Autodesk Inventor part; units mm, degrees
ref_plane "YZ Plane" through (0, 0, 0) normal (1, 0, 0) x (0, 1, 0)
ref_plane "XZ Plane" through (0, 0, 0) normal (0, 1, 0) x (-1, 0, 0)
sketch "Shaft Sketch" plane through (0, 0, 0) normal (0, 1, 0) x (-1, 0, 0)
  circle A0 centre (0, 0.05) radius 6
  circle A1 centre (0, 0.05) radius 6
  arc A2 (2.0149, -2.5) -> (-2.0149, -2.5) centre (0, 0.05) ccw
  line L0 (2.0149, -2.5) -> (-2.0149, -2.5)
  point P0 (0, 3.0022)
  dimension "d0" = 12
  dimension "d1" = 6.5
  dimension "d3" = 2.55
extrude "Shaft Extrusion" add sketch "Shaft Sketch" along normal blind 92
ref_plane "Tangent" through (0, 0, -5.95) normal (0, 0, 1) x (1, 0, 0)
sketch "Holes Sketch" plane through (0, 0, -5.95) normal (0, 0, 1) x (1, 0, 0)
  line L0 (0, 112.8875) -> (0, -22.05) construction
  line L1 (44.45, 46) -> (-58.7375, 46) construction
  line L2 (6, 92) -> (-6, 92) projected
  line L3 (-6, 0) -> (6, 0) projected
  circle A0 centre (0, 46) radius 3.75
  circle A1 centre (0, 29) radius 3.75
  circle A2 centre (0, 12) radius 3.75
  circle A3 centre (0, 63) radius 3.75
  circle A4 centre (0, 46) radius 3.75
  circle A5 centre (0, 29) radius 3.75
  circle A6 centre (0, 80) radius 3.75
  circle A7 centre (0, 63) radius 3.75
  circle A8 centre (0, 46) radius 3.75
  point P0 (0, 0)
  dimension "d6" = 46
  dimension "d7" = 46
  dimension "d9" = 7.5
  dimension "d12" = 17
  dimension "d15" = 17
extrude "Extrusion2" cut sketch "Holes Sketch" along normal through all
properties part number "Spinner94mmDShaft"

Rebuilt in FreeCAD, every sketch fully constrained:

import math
import FreeCAD as App
import Part
import Sketcher

V = App.Vector
Q = App.Units.Quantity

doc = App.newDocument("Part")
body = doc.addObject("PartDesign::Body", "Body")

# Sketch on XZ plane
sketch1 = doc.addObject("Sketcher::SketchObject", "Sketch")
body.addObject(sketch1)
sketch1.AttachmentSupport = (doc.XZ_Plane, [""])
sketch1.MapMode = "FlatFace"
sketch1.addGeometry(Part.Circle(V(0, 0.05, 0), V(0, 0, 1), 6), False)
sketch1.addGeometry(Part.ArcOfCircle(Part.Circle(V(0, 0.05, 0), V(0, 0, 1), 3.249973), math.radians(-51.685731), math.radians(231.685731)), False)
sketch1.addGeometry(Part.LineSegment(V(-2.0149, -2.5, 0), V(2.0149, -2.5, 0)), False)
sketch1.addConstraint(Sketcher.Constraint("Coincident", 1, 1, 2, 2))
sketch1.addConstraint(Sketcher.Constraint("Coincident", 2, 1, 1, 2))
sketch1.addConstraint(Sketcher.Constraint("Horizontal", 2))
sketch1.addConstraint(Sketcher.Constraint("Coincident", 1, 3, 0, 3))
sketch1.addConstraint(Sketcher.Constraint("PointOnObject", 0, 3, -2))
sketch1.addConstraint(Sketcher.Constraint("Diameter", 0, Q("12 mm")))
sketch1.addConstraint(Sketcher.Constraint("Radius", 1, Q("3.25 mm")))
sketch1.addConstraint(Sketcher.Constraint("DistanceY", 1, 1, 0, 3, Q("2.55 mm")))
sketch1.addConstraint(Sketcher.Constraint("DistanceY", 1, 1, -1, 1, Q("2.5 mm")))
pad1 = doc.addObject("PartDesign::Pad", "Pad")
body.addObject(pad1)
pad1.Profile = sketch1
pad1.Length = 92
pad1.Reversed = True

# Sketch on XY plane
sketch2 = doc.addObject("Sketcher::SketchObject", "Sketch001")
body.addObject(sketch2)
sketch2.AttachmentSupport = (doc.XY_Plane, [""])
sketch2.MapMode = "FlatFace"
sketch2.AttachmentOffset = App.Placement(V(0, 0, -5.95), App.Rotation())
sketch2.addGeometry(Part.Circle(V(0, 46, 0), V(0, 0, 1), 3.75), False)
sketch2.addGeometry(Part.Circle(V(0, 29, 0), V(0, 0, 1), 3.75), False)
sketch2.addGeometry(Part.Circle(V(0, 12, 0), V(0, 0, 1), 3.75), False)
sketch2.addGeometry(Part.Circle(V(0, 63, 0), V(0, 0, 1), 3.75), False)
sketch2.addGeometry(Part.Circle(V(0, 80, 0), V(0, 0, 1), 3.75), False)
sketch2.addConstraint(Sketcher.Constraint("Equal", 0, 1))
sketch2.addConstraint(Sketcher.Constraint("Equal", 1, 2))
sketch2.addConstraint(Sketcher.Constraint("Equal", 2, 3))
sketch2.addConstraint(Sketcher.Constraint("Equal", 3, 4))
sketch2.addConstraint(Sketcher.Constraint("PointOnObject", 0, 3, -2))
sketch2.addConstraint(Sketcher.Constraint("PointOnObject", 1, 3, -2))
sketch2.addConstraint(Sketcher.Constraint("PointOnObject", 2, 3, -2))
sketch2.addConstraint(Sketcher.Constraint("PointOnObject", 3, 3, -2))
sketch2.addConstraint(Sketcher.Constraint("PointOnObject", 4, 3, -2))
sketch2.addConstraint(Sketcher.Constraint("Diameter", 0, Q("7.5 mm")))
sketch2.addConstraint(Sketcher.Constraint("DistanceY", -1, 1, 0, 3, Q("46 mm")))
sketch2.addConstraint(Sketcher.Constraint("DistanceY", 1, 3, 0, 3, Q("17 mm")))
sketch2.addConstraint(Sketcher.Constraint("DistanceY", 2, 3, 1, 3, Q("17 mm")))
sketch2.addConstraint(Sketcher.Constraint("DistanceY", 0, 3, 3, 3, Q("17 mm")))
sketch2.addConstraint(Sketcher.Constraint("DistanceY", 3, 3, 4, 3, Q("17 mm")))
pocket1 = doc.addObject("PartDesign::Pocket", "Pocket")
body.addObject(pocket1)
pocket1.Profile = sketch2
pocket1.Type = "ThroughAll"
pocket1.Reversed = True

doc.recompute()
